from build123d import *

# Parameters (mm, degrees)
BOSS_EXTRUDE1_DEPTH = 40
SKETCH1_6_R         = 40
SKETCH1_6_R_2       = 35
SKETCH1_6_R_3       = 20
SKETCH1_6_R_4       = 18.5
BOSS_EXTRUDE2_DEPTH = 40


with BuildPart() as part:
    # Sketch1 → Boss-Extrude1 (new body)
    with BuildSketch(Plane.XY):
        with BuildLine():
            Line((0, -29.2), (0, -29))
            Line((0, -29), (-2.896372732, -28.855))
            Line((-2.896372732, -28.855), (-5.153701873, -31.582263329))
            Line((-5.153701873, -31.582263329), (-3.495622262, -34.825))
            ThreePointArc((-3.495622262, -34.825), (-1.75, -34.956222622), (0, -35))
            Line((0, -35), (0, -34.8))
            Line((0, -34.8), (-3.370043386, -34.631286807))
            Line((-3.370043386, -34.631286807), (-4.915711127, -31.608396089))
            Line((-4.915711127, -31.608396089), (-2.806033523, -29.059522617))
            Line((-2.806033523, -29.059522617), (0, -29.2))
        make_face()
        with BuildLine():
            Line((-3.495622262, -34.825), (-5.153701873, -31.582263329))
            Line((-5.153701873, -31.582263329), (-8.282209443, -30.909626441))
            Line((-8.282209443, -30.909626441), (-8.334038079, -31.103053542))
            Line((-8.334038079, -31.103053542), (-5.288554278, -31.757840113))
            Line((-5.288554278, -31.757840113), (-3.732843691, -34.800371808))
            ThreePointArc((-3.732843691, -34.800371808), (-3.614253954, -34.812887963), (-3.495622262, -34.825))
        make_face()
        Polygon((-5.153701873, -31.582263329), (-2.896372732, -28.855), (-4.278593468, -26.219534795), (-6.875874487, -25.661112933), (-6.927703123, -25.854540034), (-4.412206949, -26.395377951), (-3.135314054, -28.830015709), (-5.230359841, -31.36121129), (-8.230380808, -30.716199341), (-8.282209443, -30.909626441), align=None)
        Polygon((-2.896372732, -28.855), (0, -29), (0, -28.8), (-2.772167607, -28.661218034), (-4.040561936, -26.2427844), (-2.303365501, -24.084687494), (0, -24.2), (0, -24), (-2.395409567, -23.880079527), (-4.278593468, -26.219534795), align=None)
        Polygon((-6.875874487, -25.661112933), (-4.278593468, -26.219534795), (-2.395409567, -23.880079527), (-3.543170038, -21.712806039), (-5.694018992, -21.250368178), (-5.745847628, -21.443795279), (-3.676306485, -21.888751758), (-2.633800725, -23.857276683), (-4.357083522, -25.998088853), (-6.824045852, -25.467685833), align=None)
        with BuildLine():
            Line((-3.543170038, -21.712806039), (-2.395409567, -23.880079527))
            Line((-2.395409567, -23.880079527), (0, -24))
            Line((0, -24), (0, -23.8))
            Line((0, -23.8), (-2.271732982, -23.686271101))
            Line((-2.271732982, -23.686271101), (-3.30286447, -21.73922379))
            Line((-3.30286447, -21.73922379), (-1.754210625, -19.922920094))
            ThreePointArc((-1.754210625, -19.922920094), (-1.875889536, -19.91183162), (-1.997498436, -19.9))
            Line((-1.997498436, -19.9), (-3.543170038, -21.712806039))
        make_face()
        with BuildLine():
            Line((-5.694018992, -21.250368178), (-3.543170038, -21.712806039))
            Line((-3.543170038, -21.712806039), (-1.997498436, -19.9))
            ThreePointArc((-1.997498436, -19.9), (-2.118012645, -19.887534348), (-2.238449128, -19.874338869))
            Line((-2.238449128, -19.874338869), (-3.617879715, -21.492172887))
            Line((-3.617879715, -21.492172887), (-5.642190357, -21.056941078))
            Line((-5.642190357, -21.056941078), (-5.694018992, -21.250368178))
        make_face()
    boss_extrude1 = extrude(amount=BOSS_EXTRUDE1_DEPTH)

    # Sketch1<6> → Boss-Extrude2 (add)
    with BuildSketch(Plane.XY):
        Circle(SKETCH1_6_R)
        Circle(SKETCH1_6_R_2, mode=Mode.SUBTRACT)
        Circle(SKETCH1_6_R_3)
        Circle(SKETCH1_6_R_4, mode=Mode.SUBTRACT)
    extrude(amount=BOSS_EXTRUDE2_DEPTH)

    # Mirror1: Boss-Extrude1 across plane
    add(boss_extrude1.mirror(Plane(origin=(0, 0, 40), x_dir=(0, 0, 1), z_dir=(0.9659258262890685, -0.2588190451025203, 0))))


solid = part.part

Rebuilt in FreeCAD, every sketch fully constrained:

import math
import FreeCAD as App
import Part
import Sketcher

V = App.Vector

doc = App.newDocument("Part")
params = doc.addObject("Spreadsheet::Sheet", "Params")
for row, (alias, value) in enumerate([
    ("sketch1_radius", "35 mm"),
    ("sketch1_height", "0.4 mm"),
    ("sketch1_height2", "0.4 mm"),
    ("sketch1_height3", "0.2 mm"),
    ("pad1_length", "40 mm"),
    ("sketch2_diameter", "80 mm"),
    ("sketch2_diameter2", "70 mm"),
    ("sketch2_diameter3", "40 mm"),
    ("sketch2_diameter4", "37 mm"),
    ("pad2_length", "40 mm"),
], start=1):
    params.set(f"A{row}", alias)
    params.set(f"B{row}", "=" + value)
    params.setAlias(f"B{row}", alias)

body = doc.addObject("PartDesign::Body", "Body")

# Sketch on XY plane
sketch1 = body.newObject("Sketcher::SketchObject", "Sketch")
sketch1.AttachmentSupport = (doc.getObject("XY_Plane"), [""])
sketch1.MapMode = "FlatFace"
sketch1.addGeometry([
    Part.LineSegment(V(0, -29.2, 0), V(0, -28.8, 0)),  # 0
    Part.LineSegment(V(0, -28.8, 0), V(-2.772168, -28.661218, 0)),  # 1
    Part.LineSegment(V(-2.772168, -28.661218, 0), V(-4.040562, -26.242784, 0)),  # 2
    Part.LineSegment(V(-4.040562, -26.242784, 0), V(-2.303366, -24.084687, 0)),  # 3
    Part.LineSegment(V(-2.303366, -24.084687, 0), V(0, -24.2, 0)),  # 4
    Part.LineSegment(V(0, -24.2, 0), V(0, -23.8, 0)),  # 5
    Part.LineSegment(V(0, -23.8, 0), V(-2.271733, -23.686271, 0)),  # 6
    Part.LineSegment(V(-2.271733, -23.686271, 0), V(-3.302864, -21.739224, 0)),  # 7
    Part.LineSegment(V(-3.302864, -21.739224, 0), V(-1.754211, -19.92292, 0)),  # 8
    Part.ArcOfCircle(Part.Circle(V(-0.000002, -0.000026, 0), V(0, 0, 1), 19.999974), math.radians(-95.731968), math.radians(-95.031909)),  # 9
    Part.ArcOfCircle(Part.Circle(V(-0.000002, -0.000023, 0), V(0, 0, 1), 19.999977), math.radians(-96.426149), math.radians(-95.731968)),  # 10
    Part.LineSegment(V(-2.238449, -19.874339, 0), V(-3.61788, -21.492173, 0)),  # 11
    Part.LineSegment(V(-3.61788, -21.492173, 0), V(-5.64219, -21.056941, 0)),  # 12
    Part.LineSegment(V(-5.64219, -21.056941, 0), V(-5.694019, -21.250368, 0)),  # 13
    Part.LineSegment(V(-5.694019, -21.250368, 0), V(-5.745848, -21.443795, 0)),  # 14
    Part.LineSegment(V(-5.745848, -21.443795, 0), V(-3.676306, -21.888752, 0)),  # 15
    Part.LineSegment(V(-3.676306, -21.888752, 0), V(-2.633801, -23.857277, 0)),  # 16
    Part.LineSegment(V(-2.633801, -23.857277, 0), V(-4.357084, -25.998089, 0)),  # 17
    Part.LineSegment(V(-4.357084, -25.998089, 0), V(-6.824046, -25.467686, 0)),  # 18
    Part.LineSegment(V(-6.824046, -25.467686, 0), V(-6.875874, -25.661113, 0)),  # 19
    Part.LineSegment(V(-6.875874, -25.661113, 0), V(-6.927703, -25.85454, 0)),  # 20
    Part.LineSegment(V(-6.927703, -25.85454, 0), V(-4.412207, -26.395378, 0)),  # 21
    Part.LineSegment(V(-4.412207, -26.395378, 0), V(-3.135314, -28.830016, 0)),  # 22
    Part.LineSegment(V(-3.135314, -28.830016, 0), V(-5.23036, -31.361211, 0)),  # 23
    Part.LineSegment(V(-5.23036, -31.361211, 0), V(-8.230381, -30.716199, 0)),  # 24
    Part.LineSegment(V(-8.230381, -30.716199, 0), V(-8.282209, -30.909626, 0)),  # 25
    Part.LineSegment(V(-8.282209, -30.909626, 0), V(-8.334038, -31.103054, 0)),  # 26
    Part.LineSegment(V(-8.334038, -31.103054, 0), V(-5.288554, -31.75784, 0)),  # 27
    Part.LineSegment(V(-5.288554, -31.75784, 0), V(-3.732844, -34.800372, 0)),  # 28
    Part.ArcOfCircle(Part.Circle(V(0.000007, 0.000071, 0), V(0, 0, 1), 35.000072), math.radians(-96.122392), math.radians(-95.731968)),  # 29
    Part.ArcOfCircle(Part.Circle(V(0, 0, 0), V(0, 0, 1), 35), math.radians(-95.731968), math.radians(-90)),  # 30
    Part.LineSegment(V(0, -35, 0), V(0, -34.8, 0)),  # 31
    Part.LineSegment(V(0, -34.8, 0), V(-3.370043, -34.631287, 0)),  # 32
    Part.LineSegment(V(-3.370043, -34.631287, 0), V(-4.915711, -31.608396, 0)),  # 33
    Part.LineSegment(V(-4.915711, -31.608396, 0), V(-2.806034, -29.059523, 0)),  # 34
    Part.LineSegment(V(-2.806034, -29.059523, 0), V(0, -29.2, 0)),  # 35
], False)
sketch1.addConstraint([
    Sketcher.Constraint("Coincident", 0, 2, 1, 1),
    Sketcher.Constraint("Coincident", 1, 2, 2, 1),
    Sketcher.Constraint("Coincident", 2, 2, 3, 1),
    Sketcher.Constraint("Coincident", 3, 2, 4, 1),
    Sketcher.Constraint("Coincident", 4, 2, 5, 1),
    Sketcher.Constraint("Coincident", 5, 2, 6, 1),
    Sketcher.Constraint("Coincident", 6, 2, 7, 1),
    Sketcher.Constraint("Coincident", 7, 2, 8, 1),
    Sketcher.Constraint("Coincident", 8, 2, 9, 2),
    Sketcher.Constraint("Coincident", 9, 1, 10, 2),
    Sketcher.Constraint("Coincident", 10, 1, 11, 1),
    Sketcher.Constraint("Coincident", 11, 2, 12, 1),
    Sketcher.Constraint("Coincident", 12, 2, 13, 1),
    Sketcher.Constraint("Coincident", 13, 2, 14, 1),
    Sketcher.Constraint("Coincident", 14, 2, 15, 1),
    Sketcher.Constraint("Coincident", 15, 2, 16, 1),
    Sketcher.Constraint("Coincident", 16, 2, 17, 1),
    Sketcher.Constraint("Coincident", 17, 2, 18, 1),
    Sketcher.Constraint("Coincident", 18, 2, 19, 1),
    Sketcher.Constraint("Coincident", 19, 2, 20, 1),
    Sketcher.Constraint("Coincident", 20, 2, 21, 1),
    Sketcher.Constraint("Coincident", 21, 2, 22, 1),
    Sketcher.Constraint("Coincident", 22, 2, 23, 1),
    Sketcher.Constraint("Coincident", 23, 2, 24, 1),
    Sketcher.Constraint("Coincident", 24, 2, 25, 1),
    Sketcher.Constraint("Coincident", 25, 2, 26, 1),
    Sketcher.Constraint("Coincident", 26, 2, 27, 1),
    Sketcher.Constraint("Coincident", 27, 2, 28, 1),
    Sketcher.Constraint("Coincident", 28, 2, 29, 1),
    Sketcher.Constraint("Coincident", 29, 2, 30, 1),
    Sketcher.Constraint("Coincident", 30, 2, 31, 1),
    Sketcher.Constraint("Coincident", 31, 2, 32, 1),
    Sketcher.Constraint("Coincident", 32, 2, 33, 1),
    Sketcher.Constraint("Coincident", 33, 2, 34, 1),
    Sketcher.Constraint("Coincident", 34, 2, 35, 1),
    Sketcher.Constraint("Coincident", 35, 2, 0, 1),
    Sketcher.Constraint("Vertical", 0),
    Sketcher.Constraint("Vertical", 5),
    Sketcher.Constraint("Vertical", 31),
    Sketcher.Constraint("Coincident", 30, 3, -1, 1),
    Sketcher.Constraint("Coincident", 10, 3, 9, 3),
    Sketcher.Constraint("PointOnObject", 0, 2, -2),
    Sketcher.Constraint("PointOnObject", 4, 2, -2),
    Sketcher.Constraint("PointOnObject", 30, 2, -2),
    Sketcher.Constraint("Radius", 30, 35.0),
    Sketcher.Constraint("DistanceY", 0, 1, 0, 2, 0.4),
    Sketcher.Constraint("DistanceY", 5, 1, 5, 2, 0.4),
    Sketcher.Constraint("DistanceY", 31, 1, 31, 2, 0.2),
    Sketcher.Constraint("DistanceY", 0, 2, 5, 2, 5.0),
    Sketcher.Constraint("DistanceY", 31, 2, 0, 2, 6.0),
    Sketcher.Constraint("DistanceY", 9, 1, -1, 1, 19.9),
    Sketcher.Constraint("Radius", 29, 35.000072),
    Sketcher.Constraint("DistanceY", 29, 2, -1, 1, 34.825),
    Sketcher.Constraint("Radius", 9, 19.999974),
    Sketcher.Constraint("Distance", 8, 2.386899),
    Sketcher.Constraint("Distance", 34, 3.3087),
    Sketcher.Constraint("DistanceX", 9, 1, -1, 1, 1.997498),
    Sketcher.Constraint("DistanceX", 16, 2, -1, 1, 2.633801),
    Sketcher.Constraint("DistanceY", 24, 2, -1, 1, 30.716199),
    Sketcher.Constraint("DistanceX", 7, 2, 3, 2, 0.999499),
    Sketcher.Constraint("DistanceY", 6, 2, 11, 2, 2.194098),
    Sketcher.Constraint("DistanceX", 14, 2, 10, 1, 3.507399),
    Sketcher.Constraint("DistanceY", 17, 2, 3, 2, 1.913401),
    Sketcher.Constraint("DistanceY", 2, 2, 18, 2, 0.775099),
    Sketcher.Constraint("DistanceX", 18, 2, 14, 2, 1.078198),
    Sketcher.Constraint("DistanceX", 28, 2, 32, 2, 0.3628),
    Sketcher.Constraint("Distance", 1, 2.775639),
    Sketcher.Constraint("Distance", 2, 2.730869),
    Sketcher.Constraint("Distance", 3, 2.770421),
    Sketcher.Constraint("Distance", 4, 2.30625),
    Sketcher.Constraint("Distance", 7, 2.203231),
    Sketcher.Constraint("Distance", 11, 2.12608),
    Sketcher.Constraint("Distance", 12, 2.07057),
    Sketcher.Constraint("Distance", 13, 0.20025),
    Sketcher.Constraint("Distance", 14, 0.20025),
    Sketcher.Constraint("Distance", 19, 0.20025),
    Sketcher.Constraint("Distance", 20, 0.20025),
    Sketcher.Constraint("Distance", 21, 2.57298),
    Sketcher.Constraint("Distance", 25, 0.20025),
    Sketcher.Constraint("Distance", 26, 0.20025),
    Sketcher.Constraint("Distance", 27, 3.115079),
    Sketcher.Constraint("DistanceY", 1, 2, -1, 1, 28.661218),
    Sketcher.Constraint("DistanceX", 2, 2, -1, 1, 4.040562),
    Sketcher.Constraint("DistanceY", 6, 2, -1, 1, 23.686271),
    Sketcher.Constraint("DistanceX", 8, 2, -1, 1, 1.754211),
    Sketcher.Constraint("DistanceY", 8, 2, -1, 1, 19.92292),
    Sketcher.Constraint("DistanceX", 10, 1, -1, 1, 2.238449),
    Sketcher.Constraint("DistanceX", 12, 2, -1, 1, 5.64219),
    Sketcher.Constraint("DistanceX", 13, 2, -1, 1, 5.694019),
    Sketcher.Constraint("DistanceY", 15, 2, -1, 1, 21.888752),
    Sketcher.Constraint("DistanceY", 20, 2, -1, 1, 25.85454),
    Sketcher.Constraint("DistanceX", 23, 2, -1, 1, 5.23036),
    Sketcher.Constraint("DistanceY", 23, 2, -1, 1, 31.361211),
    Sketcher.Constraint("DistanceX", 24, 2, -1, 1, 8.230381),
    Sketcher.Constraint("DistanceX", 25, 2, -1, 1, 8.282209),
    Sketcher.Constraint("DistanceX", 26, 2, -1, 1, 8.334038),
    Sketcher.Constraint("DistanceY", 27, 2, -1, 1, 31.75784),
    Sketcher.Constraint("DistanceY", 28, 2, -1, 1, 34.800372),
    Sketcher.Constraint("DistanceX", 33, 2, -1, 1, 4.915711),
    Sketcher.Constraint("DistanceY", 0, 2, 29, 3, 28.800071),
    Sketcher.Constraint("DistanceX", 14, 2, 15, 2, 2.069541),
    Sketcher.Constraint("DistanceY", 3, 2, 16, 2, 0.227411),
    Sketcher.Constraint("DistanceX", 17, 2, 2, 2, 0.316522),
    Sketcher.Constraint("DistanceX", 19, 2, 18, 2, 0.051829),
    Sketcher.Constraint("DistanceY", 21, 2, 17, 2, 0.397289),
    Sketcher.Constraint("DistanceY", 22, 2, 2, 2, 2.587231),
    Sketcher.Constraint("DistanceX", 17, 2, 22, 2, 1.221769),
    Sketcher.Constraint("DistanceY", 33, 2, 22, 2, 2.77838),
    Sketcher.Constraint("DistanceY", 32, 2, 33, 2, 3.022891),
    Sketcher.Constraint("DistanceX", 22, 2, 34, 2, 0.329281),
])
sketch1.setExpression("Constraints[44]", "Params.sketch1_radius")
sketch1.setExpression("Constraints[45]", "Params.sketch1_height")
sketch1.setExpression("Constraints[46]", "Params.sketch1_height2")
sketch1.setExpression("Constraints[47]", "Params.sketch1_height3")
pad1 = body.newObject("PartDesign::Pad", "Pad")
pad1.Profile = sketch1
pad1.setExpression("Length", "Params.pad1_length")

# Sketch on XY plane
sketch2 = body.newObject("Sketcher::SketchObject", "Sketch001")
sketch2.AttachmentSupport = (doc.getObject("XY_Plane"), [""])
sketch2.MapMode = "FlatFace"
sketch2.addGeometry([
    Part.Circle(V(0, 0, 0), V(0, 0, 1), 40),
    Part.Circle(V(0, 0, 0), V(0, 0, 1), 35),
    Part.Circle(V(0, 0, 0), V(0, 0, 1), 20),
    Part.Circle(V(0, 0, 0), V(0, 0, 1), 18),
], False)
sketch2.addConstraint([
    Sketcher.Constraint("Coincident", 0, 3, -1, 1),
    Sketcher.Constraint("Coincident", 1, 3, -1, 1),
    Sketcher.Constraint("Coincident", 2, 3, -1, 1),
    Sketcher.Constraint("Coincident", 3, 3, -1, 1),
    Sketcher.Constraint("Diameter", 0, 80.0),
    Sketcher.Constraint("Diameter", 1, 70.0),
    Sketcher.Constraint("Diameter", 2, 40.0),
    Sketcher.Constraint("Diameter", 3, 37.0),
])
sketch2.setExpression("Constraints[4]", "Params.sketch2_diameter")
sketch2.setExpression("Constraints[5]", "Params.sketch2_diameter2")
sketch2.setExpression("Constraints[6]", "Params.sketch2_diameter3")
sketch2.setExpression("Constraints[7]", "Params.sketch2_diameter4")
pad2 = body.newObject("PartDesign::Pad", "Pad001")
pad2.Profile = sketch2
pad2.setExpression("Length", "Params.pad2_length")
doc.recompute()

datumplane = body.newObject("PartDesign::Plane", "DatumPlane")
datumplane.Placement = App.Placement(V(0, 0, 0), App.Rotation(V(-0.258819045, -0.965925826, 0), V(0, 0, -1), V(0.965925826, -0.258819045, 0), "ZXY"))
mirrored = body.newObject("PartDesign::Mirrored", "Mirrored")
mirrored.Originals = [pad1]
mirrored.MirrorPlane = (datumplane, [""])
body.Tip = mirrored

doc.recompute()
